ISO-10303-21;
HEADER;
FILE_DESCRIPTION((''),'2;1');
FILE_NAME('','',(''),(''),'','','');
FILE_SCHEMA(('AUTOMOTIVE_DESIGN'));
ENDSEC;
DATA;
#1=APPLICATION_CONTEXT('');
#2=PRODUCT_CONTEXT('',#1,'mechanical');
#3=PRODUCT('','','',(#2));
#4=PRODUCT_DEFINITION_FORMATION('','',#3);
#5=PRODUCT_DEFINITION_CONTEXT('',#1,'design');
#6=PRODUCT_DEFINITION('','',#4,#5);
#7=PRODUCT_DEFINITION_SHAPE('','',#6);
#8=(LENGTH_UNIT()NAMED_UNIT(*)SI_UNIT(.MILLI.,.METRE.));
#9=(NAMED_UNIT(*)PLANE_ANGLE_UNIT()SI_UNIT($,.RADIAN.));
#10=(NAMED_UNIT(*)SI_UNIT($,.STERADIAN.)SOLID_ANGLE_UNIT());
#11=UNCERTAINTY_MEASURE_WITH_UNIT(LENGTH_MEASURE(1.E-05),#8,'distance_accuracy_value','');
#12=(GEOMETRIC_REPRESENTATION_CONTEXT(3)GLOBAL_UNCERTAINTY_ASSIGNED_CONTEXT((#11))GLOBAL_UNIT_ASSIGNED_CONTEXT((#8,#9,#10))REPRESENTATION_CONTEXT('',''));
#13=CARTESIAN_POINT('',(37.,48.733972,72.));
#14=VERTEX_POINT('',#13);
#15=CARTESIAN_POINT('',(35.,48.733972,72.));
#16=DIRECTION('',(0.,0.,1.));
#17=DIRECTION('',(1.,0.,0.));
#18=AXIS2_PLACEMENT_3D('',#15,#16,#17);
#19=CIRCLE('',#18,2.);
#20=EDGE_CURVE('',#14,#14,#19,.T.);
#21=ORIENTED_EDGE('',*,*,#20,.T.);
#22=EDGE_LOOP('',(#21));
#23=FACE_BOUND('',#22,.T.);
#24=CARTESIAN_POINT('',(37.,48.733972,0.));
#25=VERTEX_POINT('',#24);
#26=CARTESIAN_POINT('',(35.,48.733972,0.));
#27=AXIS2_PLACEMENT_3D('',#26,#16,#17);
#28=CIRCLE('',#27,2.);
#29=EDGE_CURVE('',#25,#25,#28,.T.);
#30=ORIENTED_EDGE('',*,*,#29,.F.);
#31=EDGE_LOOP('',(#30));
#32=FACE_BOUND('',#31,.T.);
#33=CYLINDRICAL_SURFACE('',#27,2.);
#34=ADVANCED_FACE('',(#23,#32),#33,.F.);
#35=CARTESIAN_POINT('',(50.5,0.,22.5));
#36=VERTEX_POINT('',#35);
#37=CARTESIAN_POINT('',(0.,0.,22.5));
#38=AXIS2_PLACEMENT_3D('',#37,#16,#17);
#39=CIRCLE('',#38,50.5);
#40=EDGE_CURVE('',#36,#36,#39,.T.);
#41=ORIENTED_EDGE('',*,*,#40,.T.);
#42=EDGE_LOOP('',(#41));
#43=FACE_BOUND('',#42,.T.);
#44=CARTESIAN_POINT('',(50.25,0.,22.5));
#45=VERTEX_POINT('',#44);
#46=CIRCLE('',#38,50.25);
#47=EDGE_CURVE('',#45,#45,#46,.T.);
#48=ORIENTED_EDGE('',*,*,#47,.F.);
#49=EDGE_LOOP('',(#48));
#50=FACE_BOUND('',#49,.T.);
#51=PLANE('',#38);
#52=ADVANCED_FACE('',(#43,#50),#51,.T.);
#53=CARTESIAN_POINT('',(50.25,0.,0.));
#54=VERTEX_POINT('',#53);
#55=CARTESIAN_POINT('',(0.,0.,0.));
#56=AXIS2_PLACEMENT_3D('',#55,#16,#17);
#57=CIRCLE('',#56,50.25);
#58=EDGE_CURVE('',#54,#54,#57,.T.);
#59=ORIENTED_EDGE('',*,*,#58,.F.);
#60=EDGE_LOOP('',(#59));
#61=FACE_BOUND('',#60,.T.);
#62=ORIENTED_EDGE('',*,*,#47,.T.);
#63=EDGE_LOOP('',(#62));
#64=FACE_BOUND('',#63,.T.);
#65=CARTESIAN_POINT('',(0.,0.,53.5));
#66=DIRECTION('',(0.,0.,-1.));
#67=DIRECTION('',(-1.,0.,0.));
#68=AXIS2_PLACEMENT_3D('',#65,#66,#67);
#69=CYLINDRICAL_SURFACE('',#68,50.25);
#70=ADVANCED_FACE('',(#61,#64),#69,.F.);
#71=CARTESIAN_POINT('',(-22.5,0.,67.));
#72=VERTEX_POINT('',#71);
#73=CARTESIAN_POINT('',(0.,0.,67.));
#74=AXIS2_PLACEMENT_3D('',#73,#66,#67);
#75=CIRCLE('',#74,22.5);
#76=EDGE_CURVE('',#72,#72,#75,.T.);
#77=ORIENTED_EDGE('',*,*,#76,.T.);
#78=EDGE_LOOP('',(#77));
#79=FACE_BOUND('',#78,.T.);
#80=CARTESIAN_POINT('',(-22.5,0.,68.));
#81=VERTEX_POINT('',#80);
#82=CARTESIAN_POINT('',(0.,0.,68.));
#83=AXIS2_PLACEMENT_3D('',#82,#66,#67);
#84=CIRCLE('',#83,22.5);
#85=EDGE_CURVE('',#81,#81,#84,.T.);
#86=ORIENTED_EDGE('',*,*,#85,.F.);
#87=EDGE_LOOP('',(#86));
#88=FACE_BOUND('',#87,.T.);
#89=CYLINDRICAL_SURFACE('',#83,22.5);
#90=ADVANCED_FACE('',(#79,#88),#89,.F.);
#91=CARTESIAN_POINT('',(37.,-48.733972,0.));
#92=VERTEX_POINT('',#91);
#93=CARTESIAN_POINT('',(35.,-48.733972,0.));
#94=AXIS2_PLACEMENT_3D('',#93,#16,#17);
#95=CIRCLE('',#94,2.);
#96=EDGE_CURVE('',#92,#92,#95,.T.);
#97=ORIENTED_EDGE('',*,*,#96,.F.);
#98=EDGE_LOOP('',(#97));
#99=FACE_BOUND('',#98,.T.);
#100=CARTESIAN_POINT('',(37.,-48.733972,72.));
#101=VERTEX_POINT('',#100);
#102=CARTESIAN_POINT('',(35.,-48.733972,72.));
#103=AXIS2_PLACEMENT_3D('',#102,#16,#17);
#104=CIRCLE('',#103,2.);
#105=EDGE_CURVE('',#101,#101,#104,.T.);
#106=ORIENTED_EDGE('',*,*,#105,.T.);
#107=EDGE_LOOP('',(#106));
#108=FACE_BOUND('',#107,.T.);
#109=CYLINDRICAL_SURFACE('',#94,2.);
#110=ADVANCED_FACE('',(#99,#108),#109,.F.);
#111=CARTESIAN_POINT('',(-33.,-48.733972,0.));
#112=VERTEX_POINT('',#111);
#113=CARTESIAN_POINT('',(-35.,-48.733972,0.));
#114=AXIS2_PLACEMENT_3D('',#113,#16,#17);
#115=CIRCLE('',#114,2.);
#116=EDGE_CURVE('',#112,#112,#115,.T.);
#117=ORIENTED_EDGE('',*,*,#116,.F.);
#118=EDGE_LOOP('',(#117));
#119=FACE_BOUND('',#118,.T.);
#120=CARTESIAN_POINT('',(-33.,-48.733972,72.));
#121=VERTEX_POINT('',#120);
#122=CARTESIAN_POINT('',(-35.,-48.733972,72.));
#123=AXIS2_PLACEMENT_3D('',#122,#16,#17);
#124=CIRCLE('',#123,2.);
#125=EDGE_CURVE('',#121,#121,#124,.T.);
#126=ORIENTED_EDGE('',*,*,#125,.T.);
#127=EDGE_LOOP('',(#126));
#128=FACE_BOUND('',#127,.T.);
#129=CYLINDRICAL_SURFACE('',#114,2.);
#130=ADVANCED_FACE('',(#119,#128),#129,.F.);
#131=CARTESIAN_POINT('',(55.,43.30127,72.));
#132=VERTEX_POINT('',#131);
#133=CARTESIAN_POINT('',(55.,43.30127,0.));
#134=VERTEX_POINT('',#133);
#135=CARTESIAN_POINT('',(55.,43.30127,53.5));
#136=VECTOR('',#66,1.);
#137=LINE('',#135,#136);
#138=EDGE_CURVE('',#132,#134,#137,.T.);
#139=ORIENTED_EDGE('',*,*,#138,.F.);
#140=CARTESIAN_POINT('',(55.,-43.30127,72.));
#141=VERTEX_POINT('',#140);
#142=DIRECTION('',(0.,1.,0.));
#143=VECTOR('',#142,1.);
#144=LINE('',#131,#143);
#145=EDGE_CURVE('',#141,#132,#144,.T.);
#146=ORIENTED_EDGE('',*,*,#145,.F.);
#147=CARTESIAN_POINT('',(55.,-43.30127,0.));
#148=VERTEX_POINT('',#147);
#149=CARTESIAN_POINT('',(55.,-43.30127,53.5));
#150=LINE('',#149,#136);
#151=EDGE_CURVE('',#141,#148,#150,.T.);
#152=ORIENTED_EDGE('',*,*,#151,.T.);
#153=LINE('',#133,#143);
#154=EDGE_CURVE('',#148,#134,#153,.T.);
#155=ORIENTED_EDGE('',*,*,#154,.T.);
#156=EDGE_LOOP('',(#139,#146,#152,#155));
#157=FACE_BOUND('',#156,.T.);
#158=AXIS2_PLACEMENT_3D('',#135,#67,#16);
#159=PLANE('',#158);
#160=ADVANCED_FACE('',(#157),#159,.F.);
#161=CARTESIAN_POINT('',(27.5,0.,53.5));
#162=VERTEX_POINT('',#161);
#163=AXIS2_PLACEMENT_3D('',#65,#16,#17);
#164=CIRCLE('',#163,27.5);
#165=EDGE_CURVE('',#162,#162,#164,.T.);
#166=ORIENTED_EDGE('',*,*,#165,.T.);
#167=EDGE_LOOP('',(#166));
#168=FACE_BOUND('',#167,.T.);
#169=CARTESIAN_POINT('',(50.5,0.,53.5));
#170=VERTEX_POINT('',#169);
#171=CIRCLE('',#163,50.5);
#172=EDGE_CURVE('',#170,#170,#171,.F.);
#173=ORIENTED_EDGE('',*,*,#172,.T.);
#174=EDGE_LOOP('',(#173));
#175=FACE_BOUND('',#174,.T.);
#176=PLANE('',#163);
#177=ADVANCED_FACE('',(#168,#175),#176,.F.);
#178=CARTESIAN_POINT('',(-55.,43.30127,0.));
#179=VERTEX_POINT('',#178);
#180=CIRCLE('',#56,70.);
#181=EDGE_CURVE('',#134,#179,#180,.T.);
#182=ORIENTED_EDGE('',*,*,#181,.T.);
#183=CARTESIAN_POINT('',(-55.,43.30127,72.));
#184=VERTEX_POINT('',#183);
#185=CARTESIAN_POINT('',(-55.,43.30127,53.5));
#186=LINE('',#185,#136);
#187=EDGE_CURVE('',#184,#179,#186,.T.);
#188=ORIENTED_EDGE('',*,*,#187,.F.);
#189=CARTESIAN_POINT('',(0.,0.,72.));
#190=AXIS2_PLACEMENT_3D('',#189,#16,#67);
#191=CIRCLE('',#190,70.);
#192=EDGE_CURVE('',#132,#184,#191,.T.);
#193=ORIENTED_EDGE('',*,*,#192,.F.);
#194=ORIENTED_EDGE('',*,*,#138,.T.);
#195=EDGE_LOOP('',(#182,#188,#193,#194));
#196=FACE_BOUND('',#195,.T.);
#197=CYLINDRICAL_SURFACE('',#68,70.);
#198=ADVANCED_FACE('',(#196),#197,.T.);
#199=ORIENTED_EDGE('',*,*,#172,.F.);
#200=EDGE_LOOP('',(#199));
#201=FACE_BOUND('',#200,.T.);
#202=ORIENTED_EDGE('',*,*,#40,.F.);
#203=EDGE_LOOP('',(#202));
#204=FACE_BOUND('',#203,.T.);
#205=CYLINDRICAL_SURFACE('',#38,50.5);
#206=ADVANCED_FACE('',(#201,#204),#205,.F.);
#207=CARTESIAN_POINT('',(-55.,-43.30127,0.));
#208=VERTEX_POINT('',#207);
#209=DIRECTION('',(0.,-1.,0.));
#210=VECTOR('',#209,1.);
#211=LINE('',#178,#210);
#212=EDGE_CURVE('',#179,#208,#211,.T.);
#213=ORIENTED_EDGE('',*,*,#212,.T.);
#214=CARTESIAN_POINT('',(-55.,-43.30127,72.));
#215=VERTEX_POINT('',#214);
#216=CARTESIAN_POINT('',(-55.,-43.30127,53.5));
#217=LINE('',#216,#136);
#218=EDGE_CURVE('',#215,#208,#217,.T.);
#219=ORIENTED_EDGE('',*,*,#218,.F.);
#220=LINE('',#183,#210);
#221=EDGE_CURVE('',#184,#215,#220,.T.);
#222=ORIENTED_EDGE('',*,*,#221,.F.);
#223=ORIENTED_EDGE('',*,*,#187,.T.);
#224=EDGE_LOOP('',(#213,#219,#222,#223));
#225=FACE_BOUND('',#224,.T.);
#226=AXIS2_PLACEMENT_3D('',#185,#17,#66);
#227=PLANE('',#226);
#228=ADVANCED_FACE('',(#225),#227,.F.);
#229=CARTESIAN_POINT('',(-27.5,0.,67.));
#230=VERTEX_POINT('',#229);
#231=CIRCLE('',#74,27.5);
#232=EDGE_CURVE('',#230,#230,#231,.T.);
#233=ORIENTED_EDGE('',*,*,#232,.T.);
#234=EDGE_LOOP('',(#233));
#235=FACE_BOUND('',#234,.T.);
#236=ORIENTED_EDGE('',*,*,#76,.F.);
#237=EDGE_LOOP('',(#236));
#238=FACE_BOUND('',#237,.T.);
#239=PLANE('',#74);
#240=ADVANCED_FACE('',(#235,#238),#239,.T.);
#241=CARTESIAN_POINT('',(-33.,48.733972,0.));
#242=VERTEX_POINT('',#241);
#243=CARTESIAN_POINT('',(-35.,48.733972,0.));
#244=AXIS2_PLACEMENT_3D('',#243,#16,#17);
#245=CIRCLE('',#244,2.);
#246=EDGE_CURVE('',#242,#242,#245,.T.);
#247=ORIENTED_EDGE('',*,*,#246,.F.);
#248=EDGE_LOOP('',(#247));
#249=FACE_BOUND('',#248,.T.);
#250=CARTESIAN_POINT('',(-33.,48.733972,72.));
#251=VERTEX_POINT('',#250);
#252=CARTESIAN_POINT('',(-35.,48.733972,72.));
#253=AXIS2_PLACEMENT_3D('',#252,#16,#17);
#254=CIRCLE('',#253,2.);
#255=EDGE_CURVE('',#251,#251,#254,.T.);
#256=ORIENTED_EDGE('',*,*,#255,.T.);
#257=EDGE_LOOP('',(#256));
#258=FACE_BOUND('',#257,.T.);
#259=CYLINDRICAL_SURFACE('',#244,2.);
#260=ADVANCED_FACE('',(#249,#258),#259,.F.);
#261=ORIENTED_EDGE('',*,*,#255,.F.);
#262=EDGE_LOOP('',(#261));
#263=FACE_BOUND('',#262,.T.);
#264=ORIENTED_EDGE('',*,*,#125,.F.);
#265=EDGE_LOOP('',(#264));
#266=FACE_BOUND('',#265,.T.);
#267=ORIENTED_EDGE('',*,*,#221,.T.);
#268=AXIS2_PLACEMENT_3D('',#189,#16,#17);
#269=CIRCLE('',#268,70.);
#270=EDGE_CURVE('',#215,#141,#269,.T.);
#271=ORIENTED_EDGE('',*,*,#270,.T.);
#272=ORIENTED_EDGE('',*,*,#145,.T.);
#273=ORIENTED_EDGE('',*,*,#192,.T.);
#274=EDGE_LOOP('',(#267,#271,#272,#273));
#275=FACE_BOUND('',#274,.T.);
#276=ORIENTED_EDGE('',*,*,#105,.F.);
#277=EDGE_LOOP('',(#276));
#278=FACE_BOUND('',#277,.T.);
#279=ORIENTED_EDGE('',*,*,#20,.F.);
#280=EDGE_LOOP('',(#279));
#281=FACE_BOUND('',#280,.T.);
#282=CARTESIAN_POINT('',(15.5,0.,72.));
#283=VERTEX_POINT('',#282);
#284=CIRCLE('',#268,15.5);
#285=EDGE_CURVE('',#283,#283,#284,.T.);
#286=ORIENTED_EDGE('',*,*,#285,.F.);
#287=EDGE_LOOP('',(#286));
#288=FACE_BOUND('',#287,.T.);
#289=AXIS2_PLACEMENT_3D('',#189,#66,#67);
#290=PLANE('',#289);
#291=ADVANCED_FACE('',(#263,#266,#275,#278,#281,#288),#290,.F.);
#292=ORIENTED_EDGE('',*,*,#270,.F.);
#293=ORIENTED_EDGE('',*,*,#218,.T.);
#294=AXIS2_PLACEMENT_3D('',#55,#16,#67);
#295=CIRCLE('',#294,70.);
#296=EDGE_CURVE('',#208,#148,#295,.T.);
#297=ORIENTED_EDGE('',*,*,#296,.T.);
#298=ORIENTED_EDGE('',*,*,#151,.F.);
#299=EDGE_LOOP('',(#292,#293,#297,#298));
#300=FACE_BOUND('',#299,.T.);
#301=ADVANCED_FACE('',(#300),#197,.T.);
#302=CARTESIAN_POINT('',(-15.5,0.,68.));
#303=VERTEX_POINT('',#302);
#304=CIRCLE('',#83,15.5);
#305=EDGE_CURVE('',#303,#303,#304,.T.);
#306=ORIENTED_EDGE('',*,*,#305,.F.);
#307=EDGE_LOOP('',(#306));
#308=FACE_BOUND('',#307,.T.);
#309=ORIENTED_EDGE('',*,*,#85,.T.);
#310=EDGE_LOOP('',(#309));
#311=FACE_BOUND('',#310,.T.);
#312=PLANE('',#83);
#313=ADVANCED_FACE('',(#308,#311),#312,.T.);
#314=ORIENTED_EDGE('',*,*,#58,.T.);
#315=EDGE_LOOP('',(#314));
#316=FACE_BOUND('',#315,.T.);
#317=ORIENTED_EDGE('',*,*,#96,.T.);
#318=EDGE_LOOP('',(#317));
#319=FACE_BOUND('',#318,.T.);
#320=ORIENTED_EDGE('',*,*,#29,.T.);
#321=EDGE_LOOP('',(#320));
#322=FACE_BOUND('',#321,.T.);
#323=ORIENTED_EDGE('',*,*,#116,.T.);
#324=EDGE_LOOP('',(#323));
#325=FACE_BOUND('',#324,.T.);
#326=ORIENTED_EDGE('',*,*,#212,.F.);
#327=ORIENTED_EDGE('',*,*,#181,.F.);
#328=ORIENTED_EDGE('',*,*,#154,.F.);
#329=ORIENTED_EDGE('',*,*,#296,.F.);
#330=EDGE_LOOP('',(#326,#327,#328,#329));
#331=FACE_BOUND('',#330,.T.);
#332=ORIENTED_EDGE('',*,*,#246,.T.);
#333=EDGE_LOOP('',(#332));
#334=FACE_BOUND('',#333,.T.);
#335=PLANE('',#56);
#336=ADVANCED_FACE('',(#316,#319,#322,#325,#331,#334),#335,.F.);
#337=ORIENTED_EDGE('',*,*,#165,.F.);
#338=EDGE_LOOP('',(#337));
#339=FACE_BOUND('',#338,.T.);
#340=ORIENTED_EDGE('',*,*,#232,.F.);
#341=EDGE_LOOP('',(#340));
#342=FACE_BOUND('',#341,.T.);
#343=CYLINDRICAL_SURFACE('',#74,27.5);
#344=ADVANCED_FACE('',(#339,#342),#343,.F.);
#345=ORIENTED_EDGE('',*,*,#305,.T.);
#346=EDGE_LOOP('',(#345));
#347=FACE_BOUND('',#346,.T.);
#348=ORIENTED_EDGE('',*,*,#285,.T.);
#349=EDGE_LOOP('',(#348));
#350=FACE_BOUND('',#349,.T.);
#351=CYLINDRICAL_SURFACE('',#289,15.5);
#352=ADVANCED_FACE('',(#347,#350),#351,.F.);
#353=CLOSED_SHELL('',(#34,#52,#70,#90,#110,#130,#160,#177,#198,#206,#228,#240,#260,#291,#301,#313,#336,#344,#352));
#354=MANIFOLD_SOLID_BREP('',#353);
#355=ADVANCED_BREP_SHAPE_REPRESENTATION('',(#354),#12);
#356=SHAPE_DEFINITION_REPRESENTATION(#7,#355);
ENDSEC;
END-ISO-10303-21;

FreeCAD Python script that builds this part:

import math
import FreeCAD as App
import Part
import Sketcher

V = App.Vector

doc = App.newDocument("Part")
body = doc.addObject("PartDesign::Body", "Body")

# Sketch on XY plane
sketch1 = body.newObject("Sketcher::SketchObject", "Sketch")
sketch1.AttachmentSupport = (doc.getObject("XY_Plane"), [""])
sketch1.MapMode = "FlatFace"
sketch1.addGeometry([
    Part.LineSegment(V(-55, 43, 0), V(-55, -43, 0)),  # 0
    Part.ArcOfCircle(Part.Circle(V(0, 0, 0), V(0, 0, 1), 70), math.radians(-142), math.radians(-38)),  # 1
    Part.LineSegment(V(55, -43, 0), V(55, 43, 0)),  # 2
    Part.ArcOfCircle(Part.Circle(V(0, 0, 0), V(0, 0, 1), 70), math.radians(38), math.radians(142)),  # 3
    Part.Circle(V(0, 0, 0), V(0, 0, 1), 50),  # 4
], False)
sketch1.addConstraint([
    Sketcher.Constraint("Coincident", 0, 2, 1, 1),
    Sketcher.Constraint("Coincident", 1, 2, 2, 1),
    Sketcher.Constraint("Coincident", 2, 2, 3, 1),
    Sketcher.Constraint("Coincident", 3, 2, 0, 1),
    Sketcher.Constraint("Vertical", 0),
    Sketcher.Constraint("Vertical", 2),
    Sketcher.Constraint("Coincident", 1, 3, -1, 1),
    Sketcher.Constraint("Coincident", 3, 3, -1, 1),
    Sketcher.Constraint("Coincident", 4, 3, -1, 1),
    Sketcher.Constraint("Equal", 1, 3),
    Sketcher.Constraint("Horizontal", 0, 2, 1, 2),
    Sketcher.Constraint("Radius", 1, 70.0),
    Sketcher.Constraint("Diameter", 4, 100.5),
    Sketcher.Constraint("DistanceX", 0, 2, -1, 1, 55.0),
])
pad1 = body.newObject("PartDesign::Pad", "Pad")
pad1.Profile = sketch1
pad1.Length = 53.5

# Sketch on XY plane
sketch2 = body.newObject("Sketcher::SketchObject", "Sketch001")
sketch2.AttachmentSupport = (doc.getObject("XY_Plane"), [""])
sketch2.MapMode = "FlatFace"
sketch2.AttachmentOffset = App.Placement(V(0, 0, 53.5), App.Rotation())
sketch2.addGeometry(Part.Circle(V(0, 0, 0), V(0, 0, 1), 50), False)
sketch2.addConstraint([
    Sketcher.Constraint("Coincident", 0, 3, -1, 1),
    Sketcher.Constraint("Diameter", 0, 101.0),
])
pocket1 = body.newObject("PartDesign::Pocket", "Pocket")
pocket1.Profile = sketch2
pocket1.Length = 31

# Sketch on XY plane
sketch3 = body.newObject("Sketcher::SketchObject", "Sketch002")
sketch3.AttachmentSupport = (doc.getObject("XY_Plane"), [""])
sketch3.MapMode = "FlatFace"
sketch3.AttachmentOffset = App.Placement(V(0, 0, 53.5), App.Rotation())
sketch3.addGeometry([
    Part.LineSegment(V(-55, 43, 0), V(-55, -43, 0)),  # 0
    Part.ArcOfCircle(Part.Circle(V(0, 0, 0), V(0, 0, 1), 70), math.radians(-142), math.radians(-38)),  # 1
    Part.LineSegment(V(55, -43, 0), V(55, 43, 0)),  # 2
    Part.ArcOfCircle(Part.Circle(V(0, 0, 0), V(0, 0, 1), 70), math.radians(38), math.radians(142)),  # 3
    Part.Circle(V(0, 0, 0), V(0, 0, 1), 28),  # 4
], False)
sketch3.addConstraint([
    Sketcher.Constraint("Coincident", 0, 2, 1, 1),
    Sketcher.Constraint("Coincident", 1, 2, 2, 1),
    Sketcher.Constraint("Coincident", 2, 2, 3, 1),
    Sketcher.Constraint("Coincident", 3, 2, 0, 1),
    Sketcher.Constraint("Vertical", 0),
    Sketcher.Constraint("Vertical", 2),
    Sketcher.Constraint("Coincident", 1, 3, -1, 1),
    Sketcher.Constraint("Coincident", 3, 3, -1, 1),
    Sketcher.Constraint("Coincident", 4, 3, -1, 1),
    Sketcher.Constraint("Equal", 1, 3),
    Sketcher.Constraint("Horizontal", 0, 2, 1, 2),
    Sketcher.Constraint("Diameter", 4, 55.0),
    Sketcher.Constraint("Radius", 1, 70.0),
    Sketcher.Constraint("DistanceX", 0, 2, -1, 1, 55.0),
])
pad2 = body.newObject("PartDesign::Pad", "Pad001")
pad2.Profile = sketch3
pad2.Length = 13.5

# Sketch on XY plane
sketch4 = body.newObject("Sketcher::SketchObject", "Sketch003")
sketch4.AttachmentSupport = (doc.getObject("XY_Plane"), [""])
sketch4.MapMode = "FlatFace"
sketch4.AttachmentOffset = App.Placement(V(0, 0, 67), App.Rotation())
sketch4.addGeometry([
    Part.LineSegment(V(-55, 43, 0), V(-55, -43, 0)),  # 0
    Part.ArcOfCircle(Part.Circle(V(0, 0, 0), V(0, 0, 1), 70), math.radians(-142), math.radians(-38)),  # 1
    Part.LineSegment(V(55, -43, 0), V(55, 43, 0)),  # 2
    Part.ArcOfCircle(Part.Circle(V(0, 0, 0), V(0, 0, 1), 70), math.radians(38), math.radians(142)),  # 3
    Part.Circle(V(0, 0, 0), V(0, 0, 1), 16),  # 4
], False)
sketch4.addConstraint([
    Sketcher.Constraint("Coincident", 0, 2, 1, 1),
    Sketcher.Constraint("Coincident", 1, 2, 2, 1),
    Sketcher.Constraint("Coincident", 2, 2, 3, 1),
    Sketcher.Constraint("Coincident", 3, 2, 0, 1),
    Sketcher.Constraint("Vertical", 0),
    Sketcher.Constraint("Vertical", 2),
    Sketcher.Constraint("Coincident", 1, 3, -1, 1),
    Sketcher.Constraint("Coincident", 3, 3, -1, 1),
    Sketcher.Constraint("Coincident", 4, 3, -1, 1),
    Sketcher.Constraint("Equal", 1, 3),
    Sketcher.Constraint("Horizontal", 0, 2, 1, 2),
    Sketcher.Constraint("Diameter", 4, 31.0),
    Sketcher.Constraint("Radius", 1, 70.0),
    Sketcher.Constraint("DistanceX", 0, 2, -1, 1, 55.0),
])
pad3 = body.newObject("PartDesign::Pad", "Pad002")
pad3.Profile = sketch4
pad3.Length = 5

# Sketch on XY plane
sketch5 = body.newObject("Sketcher::SketchObject", "Sketch004")
sketch5.AttachmentSupport = (doc.getObject("XY_Plane"), [""])
sketch5.MapMode = "FlatFace"
sketch5.AttachmentOffset = App.Placement(V(0, 0, 72), App.Rotation())
sketch5.addGeometry([
    Part.Circle(V(-35, -48.7, 0), V(0, 0, 1), 2),
    Part.Circle(V(-35, 48.7, 0), V(0, 0, 1), 2),
    Part.Circle(V(35, 48.7, 0), V(0, 0, 1), 2),
    Part.Circle(V(35, -48.7, 0), V(0, 0, 1), 2),
], False)
sketch5.addConstraint([
    Sketcher.Constraint("Equal", 0, 1),
    Sketcher.Constraint("Equal", 1, 2),
    Sketcher.Constraint("Equal", 2, 3),
    Sketcher.Constraint("Symmetric", 0, 3, 2, 3, -1, 1),
    Sketcher.Constraint("Symmetric", 1, 3, 3, 3, -1, 1),
    Sketcher.Constraint("Symmetric", 1, 3, 2, 3, -2),
    Sketcher.Constraint("Diameter", 0, 4.0),
    Sketcher.Constraint("DistanceX", 0, 3, -1, 1, 35.0),
    Sketcher.Constraint("DistanceY", 0, 3, -1, 1, 48.733972),
])
pocket2 = body.newObject("PartDesign::Pocket", "Pocket001")
pocket2.Profile = sketch5
pocket2.Type = "ThroughAll"

# Sketch on XY plane
sketch6 = body.newObject("Sketcher::SketchObject", "Sketch005")
sketch6.AttachmentSupport = (doc.getObject("XY_Plane"), [""])
sketch6.MapMode = "FlatFace"
sketch6.AttachmentOffset = App.Placement(V(0, 0, 67), App.Rotation())
sketch6.addGeometry(Part.Circle(V(0, 0, 0), V(0, 0, 1), 22), False)
sketch6.addConstraint([
    Sketcher.Constraint("Coincident", 0, 3, -1, 1),
    Sketcher.Constraint("Diameter", 0, 45.0),
])
pocket3 = body.newObject("PartDesign::Pocket", "Pocket002")
pocket3.Profile = sketch6
pocket3.Length = 1
pocket3.Reversed = True

doc.recompute()
